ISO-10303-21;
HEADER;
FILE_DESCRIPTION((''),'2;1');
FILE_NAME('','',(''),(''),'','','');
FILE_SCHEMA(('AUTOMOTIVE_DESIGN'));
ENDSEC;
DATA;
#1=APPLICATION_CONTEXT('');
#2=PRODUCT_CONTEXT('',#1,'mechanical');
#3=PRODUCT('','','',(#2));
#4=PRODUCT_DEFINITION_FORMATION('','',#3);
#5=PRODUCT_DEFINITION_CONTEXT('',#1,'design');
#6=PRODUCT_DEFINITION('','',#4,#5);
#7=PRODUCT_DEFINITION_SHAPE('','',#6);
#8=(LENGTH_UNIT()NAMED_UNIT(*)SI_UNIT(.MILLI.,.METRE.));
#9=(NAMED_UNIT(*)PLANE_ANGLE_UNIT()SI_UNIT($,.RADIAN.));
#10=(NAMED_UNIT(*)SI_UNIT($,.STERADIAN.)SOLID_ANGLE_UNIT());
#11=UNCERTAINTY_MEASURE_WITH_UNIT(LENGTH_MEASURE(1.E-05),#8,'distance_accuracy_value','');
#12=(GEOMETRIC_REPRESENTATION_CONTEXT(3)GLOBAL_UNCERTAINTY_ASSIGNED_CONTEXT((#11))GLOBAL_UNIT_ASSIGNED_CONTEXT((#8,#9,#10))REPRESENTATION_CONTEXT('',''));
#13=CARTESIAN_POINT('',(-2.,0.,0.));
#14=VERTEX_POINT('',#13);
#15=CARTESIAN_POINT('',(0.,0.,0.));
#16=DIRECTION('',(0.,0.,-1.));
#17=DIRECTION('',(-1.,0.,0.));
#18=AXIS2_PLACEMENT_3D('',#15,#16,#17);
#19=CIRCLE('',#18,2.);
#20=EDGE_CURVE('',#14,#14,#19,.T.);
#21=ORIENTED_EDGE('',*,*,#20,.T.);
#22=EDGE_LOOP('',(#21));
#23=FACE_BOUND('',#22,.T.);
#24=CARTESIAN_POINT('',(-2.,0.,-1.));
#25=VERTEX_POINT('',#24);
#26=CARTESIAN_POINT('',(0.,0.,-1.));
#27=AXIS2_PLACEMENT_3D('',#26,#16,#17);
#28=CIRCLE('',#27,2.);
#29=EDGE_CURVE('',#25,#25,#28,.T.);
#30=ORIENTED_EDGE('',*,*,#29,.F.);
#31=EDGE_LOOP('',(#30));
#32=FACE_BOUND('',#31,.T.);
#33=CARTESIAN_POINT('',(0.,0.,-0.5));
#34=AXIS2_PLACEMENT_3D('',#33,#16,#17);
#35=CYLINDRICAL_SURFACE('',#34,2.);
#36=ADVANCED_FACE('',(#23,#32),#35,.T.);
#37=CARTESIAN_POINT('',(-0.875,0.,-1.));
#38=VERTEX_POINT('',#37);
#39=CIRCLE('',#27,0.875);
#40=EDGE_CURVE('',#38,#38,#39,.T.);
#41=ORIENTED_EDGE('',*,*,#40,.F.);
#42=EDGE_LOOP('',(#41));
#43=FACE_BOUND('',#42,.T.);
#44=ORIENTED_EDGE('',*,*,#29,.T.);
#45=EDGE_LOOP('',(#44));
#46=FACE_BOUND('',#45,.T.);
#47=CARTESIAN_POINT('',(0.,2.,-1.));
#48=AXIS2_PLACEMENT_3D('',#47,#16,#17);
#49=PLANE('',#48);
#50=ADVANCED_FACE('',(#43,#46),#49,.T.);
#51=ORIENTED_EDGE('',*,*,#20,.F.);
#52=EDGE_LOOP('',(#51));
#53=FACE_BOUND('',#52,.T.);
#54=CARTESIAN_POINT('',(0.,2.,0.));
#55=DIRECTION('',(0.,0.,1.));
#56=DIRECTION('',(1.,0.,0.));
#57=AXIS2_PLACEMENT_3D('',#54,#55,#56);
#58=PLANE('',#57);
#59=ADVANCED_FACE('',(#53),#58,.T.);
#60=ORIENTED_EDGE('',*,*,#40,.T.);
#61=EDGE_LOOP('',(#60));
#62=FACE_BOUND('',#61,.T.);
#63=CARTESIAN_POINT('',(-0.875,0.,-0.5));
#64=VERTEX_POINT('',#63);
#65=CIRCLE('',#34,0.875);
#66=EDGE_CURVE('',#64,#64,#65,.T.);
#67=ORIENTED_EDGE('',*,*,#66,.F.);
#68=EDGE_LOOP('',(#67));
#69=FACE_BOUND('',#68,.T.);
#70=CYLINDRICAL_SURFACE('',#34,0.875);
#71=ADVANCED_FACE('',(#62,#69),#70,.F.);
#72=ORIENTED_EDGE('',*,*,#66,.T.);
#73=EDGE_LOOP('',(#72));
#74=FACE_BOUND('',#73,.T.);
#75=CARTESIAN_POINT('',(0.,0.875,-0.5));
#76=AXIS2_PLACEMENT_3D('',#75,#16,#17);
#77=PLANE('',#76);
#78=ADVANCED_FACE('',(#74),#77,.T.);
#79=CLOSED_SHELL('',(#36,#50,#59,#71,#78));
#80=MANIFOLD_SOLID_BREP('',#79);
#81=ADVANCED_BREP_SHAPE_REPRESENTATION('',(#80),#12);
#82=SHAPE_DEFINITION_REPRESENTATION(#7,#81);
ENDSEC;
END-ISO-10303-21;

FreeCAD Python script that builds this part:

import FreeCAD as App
import Part
import Sketcher
from FreeCAD import Vector
Q = App.Units.Quantity

doc = App.newDocument("Part")
params = doc.addObject("Spreadsheet::Sheet", "Params")
for row, (alias, value) in enumerate([
    ("sketch1_width", "2 mm"),
    ("sketch1_height", "1 mm"),
    ("revolution_angle", "360 deg"),
], start=1):
    params.set(f"A{row}", alias)
    params.set(f"B{row}", "=" + value)
    params.setAlias(f"B{row}", alias)

body = doc.addObject("PartDesign::Body", "Body")

# Sketch on YZ plane
sketch1 = body.newObject("Sketcher::SketchObject", "Sketch")
sketch1.AttachmentSupport = (doc.getObject("YZ_Plane"), [""])
sketch1.MapMode = "FlatFace"
sketch1.addGeometry(Part.LineSegment(Vector(2, -1, 0), Vector(2, 0, 0)), False)
sketch1.addGeometry(Part.LineSegment(Vector(2, 0, 0), Vector(0, 0, 0)), False)
sketch1.addGeometry(Part.LineSegment(Vector(0, 0, 0), Vector(0, -0.5, 0)), False)
sketch1.addGeometry(Part.LineSegment(Vector(0, -0.5, 0), Vector(0.9, -0.5, 0)), False)
sketch1.addGeometry(Part.LineSegment(Vector(0.9, -0.5, 0), Vector(0.9, -1, 0)), False)
sketch1.addGeometry(Part.LineSegment(Vector(0.9, -1, 0), Vector(2, -1, 0)), False)
sketch1.addConstraint(Sketcher.Constraint("Coincident", 0, 2, 1, 1))
sketch1.addConstraint(Sketcher.Constraint("Coincident", 1, 2, 2, 1))
sketch1.addConstraint(Sketcher.Constraint("Coincident", 2, 2, 3, 1))
sketch1.addConstraint(Sketcher.Constraint("Coincident", 3, 2, 4, 1))
sketch1.addConstraint(Sketcher.Constraint("Coincident", 4, 2, 5, 1))
sketch1.addConstraint(Sketcher.Constraint("Coincident", 5, 2, 0, 1))
sketch1.addConstraint(Sketcher.Constraint("Vertical", 0))
sketch1.addConstraint(Sketcher.Constraint("Horizontal", 1))
sketch1.addConstraint(Sketcher.Constraint("Vertical", 2))
sketch1.addConstraint(Sketcher.Constraint("Horizontal", 3))
sketch1.addConstraint(Sketcher.Constraint("Vertical", 4))
sketch1.addConstraint(Sketcher.Constraint("Horizontal", 5))
sketch1.addConstraint(Sketcher.Constraint("Coincident", 1, 2, -1, 1))
sketch1.addConstraint(Sketcher.Constraint("Equal", 2, 4))
sketch1.addConstraint(Sketcher.Constraint("DistanceX", 1, 2, 1, 1, Q("2 mm")))
sketch1.addConstraint(Sketcher.Constraint("DistanceY", 0, 1, 0, 2, Q("1 mm")))
sketch1.addConstraint(Sketcher.Constraint("DistanceX", 3, 1, 3, 2, Q("0.875 mm")))
sketch1.setExpression("Constraints[14]", "Params.sketch1_width")
sketch1.setExpression("Constraints[15]", "Params.sketch1_height")
revolution = body.newObject("PartDesign::Revolution", "Revolution")
revolution.Profile = sketch1
revolution.ReferenceAxis = (sketch1, ["V_Axis"])
revolution.setExpression("Angle", "Params.revolution_angle")

doc.recompute()
